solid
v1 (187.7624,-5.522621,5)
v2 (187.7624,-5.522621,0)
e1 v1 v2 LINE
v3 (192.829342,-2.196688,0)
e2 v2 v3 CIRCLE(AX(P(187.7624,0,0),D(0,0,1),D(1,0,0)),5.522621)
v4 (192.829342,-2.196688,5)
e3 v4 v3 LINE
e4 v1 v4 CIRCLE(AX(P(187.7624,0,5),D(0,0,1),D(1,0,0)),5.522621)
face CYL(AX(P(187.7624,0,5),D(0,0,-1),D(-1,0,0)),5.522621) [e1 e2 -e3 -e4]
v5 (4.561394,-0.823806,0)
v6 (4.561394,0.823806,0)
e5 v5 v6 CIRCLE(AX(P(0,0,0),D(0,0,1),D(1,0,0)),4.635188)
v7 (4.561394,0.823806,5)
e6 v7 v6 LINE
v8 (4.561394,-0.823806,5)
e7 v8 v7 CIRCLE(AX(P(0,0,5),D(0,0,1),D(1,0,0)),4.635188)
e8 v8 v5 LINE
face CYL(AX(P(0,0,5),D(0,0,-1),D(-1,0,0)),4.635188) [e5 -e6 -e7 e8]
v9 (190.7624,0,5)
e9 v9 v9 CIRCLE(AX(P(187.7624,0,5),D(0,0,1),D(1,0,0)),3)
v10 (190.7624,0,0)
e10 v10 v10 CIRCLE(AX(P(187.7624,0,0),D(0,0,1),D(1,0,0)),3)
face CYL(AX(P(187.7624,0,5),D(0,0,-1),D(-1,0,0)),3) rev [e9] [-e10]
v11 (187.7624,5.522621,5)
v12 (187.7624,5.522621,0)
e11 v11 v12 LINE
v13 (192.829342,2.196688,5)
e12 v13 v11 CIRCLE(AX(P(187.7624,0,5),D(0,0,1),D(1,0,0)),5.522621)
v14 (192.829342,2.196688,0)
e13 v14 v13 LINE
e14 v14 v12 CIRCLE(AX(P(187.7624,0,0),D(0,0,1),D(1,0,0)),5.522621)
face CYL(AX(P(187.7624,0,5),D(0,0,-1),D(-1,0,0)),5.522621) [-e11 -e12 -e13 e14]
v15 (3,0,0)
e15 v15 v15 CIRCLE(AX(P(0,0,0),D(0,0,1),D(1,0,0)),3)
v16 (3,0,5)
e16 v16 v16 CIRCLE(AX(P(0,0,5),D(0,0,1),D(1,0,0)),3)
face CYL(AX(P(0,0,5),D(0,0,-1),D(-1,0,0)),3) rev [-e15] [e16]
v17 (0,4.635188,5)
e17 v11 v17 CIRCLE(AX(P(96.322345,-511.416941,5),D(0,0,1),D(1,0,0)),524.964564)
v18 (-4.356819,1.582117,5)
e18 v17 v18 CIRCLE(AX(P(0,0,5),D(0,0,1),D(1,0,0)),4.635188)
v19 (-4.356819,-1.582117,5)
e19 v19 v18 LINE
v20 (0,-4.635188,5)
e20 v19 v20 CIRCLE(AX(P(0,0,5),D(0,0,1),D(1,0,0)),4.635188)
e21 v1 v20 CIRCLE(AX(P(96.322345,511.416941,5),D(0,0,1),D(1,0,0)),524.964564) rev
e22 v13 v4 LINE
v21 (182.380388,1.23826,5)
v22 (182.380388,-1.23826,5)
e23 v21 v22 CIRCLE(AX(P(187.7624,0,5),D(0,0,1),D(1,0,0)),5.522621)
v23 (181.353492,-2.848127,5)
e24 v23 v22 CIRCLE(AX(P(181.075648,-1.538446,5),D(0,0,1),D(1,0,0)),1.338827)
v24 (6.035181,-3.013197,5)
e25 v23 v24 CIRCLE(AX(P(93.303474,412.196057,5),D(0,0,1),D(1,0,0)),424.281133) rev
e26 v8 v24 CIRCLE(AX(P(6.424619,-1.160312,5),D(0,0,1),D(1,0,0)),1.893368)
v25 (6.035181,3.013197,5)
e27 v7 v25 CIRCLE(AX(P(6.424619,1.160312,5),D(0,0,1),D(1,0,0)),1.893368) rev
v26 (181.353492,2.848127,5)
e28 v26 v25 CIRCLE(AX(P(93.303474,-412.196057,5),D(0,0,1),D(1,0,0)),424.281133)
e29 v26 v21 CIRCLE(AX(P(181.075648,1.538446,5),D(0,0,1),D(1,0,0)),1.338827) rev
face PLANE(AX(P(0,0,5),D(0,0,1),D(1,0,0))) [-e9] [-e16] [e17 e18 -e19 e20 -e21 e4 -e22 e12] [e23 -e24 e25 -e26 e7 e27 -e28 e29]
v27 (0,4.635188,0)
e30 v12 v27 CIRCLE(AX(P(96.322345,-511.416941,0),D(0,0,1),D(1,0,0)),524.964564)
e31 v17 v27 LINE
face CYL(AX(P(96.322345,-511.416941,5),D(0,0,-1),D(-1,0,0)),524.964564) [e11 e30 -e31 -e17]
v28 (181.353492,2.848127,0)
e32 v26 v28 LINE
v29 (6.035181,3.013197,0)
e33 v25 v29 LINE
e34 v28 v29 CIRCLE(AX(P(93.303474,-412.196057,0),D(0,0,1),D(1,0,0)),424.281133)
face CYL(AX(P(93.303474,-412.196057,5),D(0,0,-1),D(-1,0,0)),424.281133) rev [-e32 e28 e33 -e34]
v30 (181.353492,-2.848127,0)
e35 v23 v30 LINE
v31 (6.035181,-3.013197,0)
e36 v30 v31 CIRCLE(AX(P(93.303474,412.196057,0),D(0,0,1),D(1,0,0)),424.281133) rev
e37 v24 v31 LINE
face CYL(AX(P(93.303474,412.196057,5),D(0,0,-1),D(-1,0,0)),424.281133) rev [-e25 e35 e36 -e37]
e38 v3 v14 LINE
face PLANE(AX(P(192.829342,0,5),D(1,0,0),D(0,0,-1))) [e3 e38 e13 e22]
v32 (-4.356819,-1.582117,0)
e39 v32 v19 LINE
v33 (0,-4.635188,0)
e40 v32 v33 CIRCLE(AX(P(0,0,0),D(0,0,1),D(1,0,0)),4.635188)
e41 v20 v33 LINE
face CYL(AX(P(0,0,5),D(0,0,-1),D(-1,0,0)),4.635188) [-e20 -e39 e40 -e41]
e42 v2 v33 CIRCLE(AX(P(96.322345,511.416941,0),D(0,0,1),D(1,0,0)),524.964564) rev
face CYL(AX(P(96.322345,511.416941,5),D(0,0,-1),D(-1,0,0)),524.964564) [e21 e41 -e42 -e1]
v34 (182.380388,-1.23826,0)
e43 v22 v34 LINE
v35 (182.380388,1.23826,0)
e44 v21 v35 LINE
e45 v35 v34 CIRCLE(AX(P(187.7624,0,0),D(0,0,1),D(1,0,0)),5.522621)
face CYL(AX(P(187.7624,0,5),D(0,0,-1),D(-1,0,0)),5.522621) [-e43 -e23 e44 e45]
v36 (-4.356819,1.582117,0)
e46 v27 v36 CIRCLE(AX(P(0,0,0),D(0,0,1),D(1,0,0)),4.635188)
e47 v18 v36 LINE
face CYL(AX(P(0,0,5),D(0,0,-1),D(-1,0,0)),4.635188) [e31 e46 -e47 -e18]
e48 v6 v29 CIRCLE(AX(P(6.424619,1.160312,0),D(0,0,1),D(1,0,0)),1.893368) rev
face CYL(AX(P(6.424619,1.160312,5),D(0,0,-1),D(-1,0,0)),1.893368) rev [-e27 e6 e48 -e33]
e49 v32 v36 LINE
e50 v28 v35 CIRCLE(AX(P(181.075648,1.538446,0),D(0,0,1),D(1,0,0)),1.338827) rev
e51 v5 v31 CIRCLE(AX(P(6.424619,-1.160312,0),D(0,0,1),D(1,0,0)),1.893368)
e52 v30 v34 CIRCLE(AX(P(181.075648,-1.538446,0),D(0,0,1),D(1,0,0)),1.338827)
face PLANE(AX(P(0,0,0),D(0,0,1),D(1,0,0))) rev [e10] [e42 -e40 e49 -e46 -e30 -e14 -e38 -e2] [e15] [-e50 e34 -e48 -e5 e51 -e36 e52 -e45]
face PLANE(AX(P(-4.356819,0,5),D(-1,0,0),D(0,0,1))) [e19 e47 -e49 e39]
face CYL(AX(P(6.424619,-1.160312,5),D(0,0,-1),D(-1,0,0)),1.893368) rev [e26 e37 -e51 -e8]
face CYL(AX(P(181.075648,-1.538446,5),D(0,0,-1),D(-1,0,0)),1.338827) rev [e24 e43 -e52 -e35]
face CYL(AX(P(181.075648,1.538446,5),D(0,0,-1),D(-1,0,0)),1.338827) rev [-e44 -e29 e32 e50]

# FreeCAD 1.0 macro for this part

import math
import FreeCAD as App
import Part
import Sketcher

doc = App.newDocument("Part")
body = doc.addObject("PartDesign::Body", "Body")

# Sketch on XY plane
sketch1 = body.newObject("Sketcher::SketchObject", "Sketch")
sketch1.AttachmentSupport = (doc.getObject("XY_Plane"), [""])
sketch1.MapMode = "FlatFace"
sketch1.addGeometry([
    Part.ArcOfCircle(Part.Circle(App.Vector(96.322345, -511.416941, 0), App.Vector(0, 0, 1), 524.964564), math.radians(79.968866), math.radians(100.572731)),  # 0
    Part.ArcOfCircle(Part.Circle(App.Vector(0, 0, 0), App.Vector(0, 0, 1), 4.635188), math.radians(90), math.radians(270)),  # 1
    Part.ArcOfCircle(Part.Circle(App.Vector(96.322345, 511.416941, 0), App.Vector(0, 0, 1), 524.964564), math.radians(-100.572731), math.radians(-79.968866)),  # 2
    Part.ArcOfCircle(Part.Circle(App.Vector(187.7624, 0, 0), App.Vector(0, 0, 1), 5.522621), math.radians(-90), math.radians(90)),  # 3
    Part.Circle(App.Vector(0, 0, 0), App.Vector(0, 0, 1), 3),  # 4
    Part.Circle(App.Vector(187.7624, 0, 0), App.Vector(0, 0, 1), 3),  # 5
    Part.ArcOfCircle(Part.Circle(App.Vector(181.075648, -1.538446, 0), App.Vector(0, 0, 1), 1.338827), math.radians(-78.022501), math.radians(12.95678)),  # 6
    Part.ArcOfCircle(Part.Circle(App.Vector(93.303474, 412.196057, 0), App.Vector(0, 0, 1), 424.281133), math.radians(-101.869605), math.radians(-78.022501)),  # 7
    Part.ArcOfCircle(Part.Circle(App.Vector(6.424619, -1.160312, 0), App.Vector(0, 0, 1), 1.893368), math.radians(169.762504), math.radians(258.130395)),  # 8
    Part.ArcOfCircle(Part.Circle(App.Vector(0, 0, 0), App.Vector(0, 0, 1), 4.635188), math.radians(-10.237496), math.radians(10.237496)),  # 9
    Part.ArcOfCircle(Part.Circle(App.Vector(6.424619, 1.160312, 0), App.Vector(0, 0, 1), 1.893368), math.radians(101.869605), math.radians(190.237496)),  # 10
    Part.ArcOfCircle(Part.Circle(App.Vector(93.303474, -412.196057, 0), App.Vector(0, 0, 1), 424.281133), math.radians(78.022501), math.radians(101.869605)),  # 11
    Part.ArcOfCircle(Part.Circle(App.Vector(181.075648, 1.538446, 0), App.Vector(0, 0, 1), 1.338827), math.radians(-12.95678), math.radians(78.022501)),  # 12
    Part.ArcOfCircle(Part.Circle(App.Vector(187.7624, 0, 0), App.Vector(0, 0, 1), 5.522621), math.radians(167.04322), math.radians(192.95678)),  # 13
], False)
sketch1.addConstraint([
    Sketcher.Constraint("Coincident", 0, 2, 1, 1),
    Sketcher.Constraint("Coincident", 1, 2, 2, 1),
    Sketcher.Constraint("Coincident", 2, 2, 3, 1),
    Sketcher.Constraint("Coincident", 3, 2, 0, 1),
    Sketcher.Constraint("Tangent", 6, 1, 7, 2),
    Sketcher.Constraint("Tangent", 7, 1, 8, 2),
    Sketcher.Constraint("Tangent", 8, 1, 9, 1),
    Sketcher.Constraint("Tangent", 9, 2, 10, 2),
    Sketcher.Constraint("Tangent", 10, 1, 11, 2),
    Sketcher.Constraint("Tangent", 11, 1, 12, 2),
    Sketcher.Constraint("Tangent", 12, 1, 13, 1),
    Sketcher.Constraint("Tangent", 13, 2, 6, 2),
    Sketcher.Constraint("Coincident", 1, 3, -1, 1),
    Sketcher.Constraint("Coincident", 4, 3, -1, 1),
    Sketcher.Constraint("Coincident", 9, 3, -1, 1),
    Sketcher.Constraint("Coincident", 5, 3, 3, 3),
    Sketcher.Constraint("Coincident", 13, 3, 3, 3),
    Sketcher.Constraint("Equal", 0, 2),
    Sketcher.Constraint("Equal", 4, 5),
    Sketcher.Constraint("Equal", 1, 9),
    Sketcher.Constraint("Equal", 8, 10),
    Sketcher.Constraint("Equal", 7, 11),
    Sketcher.Constraint("Equal", 6, 12),
    Sketcher.Constraint("Equal", 3, 13),
    Sketcher.Constraint("Symmetric", 0, 3, 2, 3, -1),
    Sketcher.Constraint("Symmetric", 7, 3, 11, 3, -1),
    Sketcher.Constraint("PointOnObject", 3, 3, -1),
    Sketcher.Constraint("PointOnObject", 0, 2, -2),
    Sketcher.Constraint("Vertical", 13, 3, 2, 2),
    Sketcher.Constraint("Diameter", 4, 6.0),
    Sketcher.Constraint("Radius", 1, 4.635188),
    Sketcher.Constraint("Radius", 3, 5.522621),
    Sketcher.Constraint("Radius", 8, 1.893368),
    Sketcher.Constraint("Radius", 0, 524.964564),
    Sketcher.Constraint("Radius", 6, 1.338827),
    Sketcher.Constraint("Radius", 7, 424.281133),
    Sketcher.Constraint("DistanceX", -1, 1, 3, 3, 187.7624),
    Sketcher.Constraint("DistanceY", 8, 3, 0, 2, 5.795501),
    Sketcher.Constraint("DistanceX", -1, 1, 6, 1, 181.353492),
])
pad1 = body.newObject("PartDesign::Pad", "Pad")
pad1.Profile = sketch1
pad1.Length = 5

# Sketch on XY plane
sketch2 = body.newObject("Sketcher::SketchObject", "Sketch001")
sketch2.AttachmentSupport = (doc.getObject("XY_Plane"), [""])
sketch2.MapMode = "FlatFace"
sketch2.addGeometry([
    Part.LineSegment(App.Vector(192.829342, 4.134108, 0), App.Vector(192.829342, -3.371538, 0)),  # 0
    Part.LineSegment(App.Vector(192.829342, -3.371538, 0), App.Vector(194.447871, -3.371538, 0)),  # 1
    Part.LineSegment(App.Vector(194.447871, -3.371538, 0), App.Vector(194.447871, 4.134108, 0)),  # 2
    Part.LineSegment(App.Vector(194.447871, 4.134108, 0), App.Vector(192.829342, 4.134108, 0)),  # 3
    Part.LineSegment(App.Vector(-5.00865, 2.487096, 0), App.Vector(-5.00865, -2.564588, 0)),  # 4
    Part.LineSegment(App.Vector(-5.00865, -2.564588, 0), App.Vector(-4.356819, -2.564588, 0)),  # 5
    Part.LineSegment(App.Vector(-4.356819, -2.564588, 0), App.Vector(-4.356819, 2.487096, 0)),  # 6
    Part.LineSegment(App.Vector(-4.356819, 2.487096, 0), App.Vector(-5.00865, 2.487096, 0)),  # 7
], False)
sketch2.addConstraint([
    Sketcher.Constraint("Coincident", 0, 2, 1, 1),
    Sketcher.Constraint("Coincident", 1, 2, 2, 1),
    Sketcher.Constraint("Coincident", 2, 2, 3, 1),
    Sketcher.Constraint("Coincident", 3, 2, 0, 1),
    Sketcher.Constraint("Coincident", 4, 2, 5, 1),
    Sketcher.Constraint("Coincident", 5, 2, 6, 1),
    Sketcher.Constraint("Coincident", 6, 2, 7, 1),
    Sketcher.Constraint("Coincident", 7, 2, 4, 1),
    Sketcher.Constraint("Vertical", 0),
    Sketcher.Constraint("Horizontal", 1),
    Sketcher.Constraint("Vertical", 2),
    Sketcher.Constraint("Horizontal", 3),
    Sketcher.Constraint("Vertical", 4),
    Sketcher.Constraint("Horizontal", 5),
    Sketcher.Constraint("Vertical", 6),
    Sketcher.Constraint("Horizontal", 7),
    Sketcher.Constraint("DistanceX", 1, 1, 1, 2, 1.618529),
    Sketcher.Constraint("DistanceX", 5, 1, 5, 2, 0.65183),
    Sketcher.Constraint("DistanceY", 0, 2, 0, 1, 7.505646),
    Sketcher.Constraint("DistanceY", 4, 2, 4, 1, 5.051684),
    Sketcher.Constraint("DistanceX", -1, 1, 0, 2, 192.829342),
    Sketcher.Constraint("DistanceX", 4, 2, -1, 1, 5.00865),
    Sketcher.Constraint("DistanceY", 4, 2, -1, 1, 2.564588),
    Sketcher.Constraint("DistanceY", 0, 2, 4, 2, 0.80695),
])
pocket1 = body.newObject("PartDesign::Pocket", "Pocket")
pocket1.Profile = sketch2
pocket1.Type = "ThroughAll"
pocket1.Reversed = True

doc.recompute()
